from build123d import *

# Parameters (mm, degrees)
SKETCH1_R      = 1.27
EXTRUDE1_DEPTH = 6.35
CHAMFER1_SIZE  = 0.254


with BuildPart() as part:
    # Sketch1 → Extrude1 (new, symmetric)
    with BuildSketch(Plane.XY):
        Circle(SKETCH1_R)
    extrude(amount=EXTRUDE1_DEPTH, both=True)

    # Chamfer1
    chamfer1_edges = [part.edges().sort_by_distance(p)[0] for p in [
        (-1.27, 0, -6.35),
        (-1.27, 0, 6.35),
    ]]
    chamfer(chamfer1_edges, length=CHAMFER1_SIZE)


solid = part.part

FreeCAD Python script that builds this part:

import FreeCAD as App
import Part
import Sketcher

V = App.Vector
Q = App.Units.Quantity


def edges_at(feature, points):
    """Names of the edges that pass closest to the given points."""
    edges = feature.Shape.Edges
    near = lambda p: min(range(len(edges)), key=lambda i: edges[i].distToShape(Part.Vertex(*p))[0])
    return sorted({f"Edge{near(p) + 1}" for p in points})

doc = App.newDocument("Part")
body = doc.addObject("PartDesign::Body", "Body")

sketch1 = body.newObject("Sketcher::SketchObject", "Sketch")
sketch1.AttachmentSupport = (doc.getObject("XY_Plane"), [""])
sketch1.MapMode = "FlatFace"
sketch1.addGeometry(Part.Circle(V(0, 0, 0), V(0, 0, 1), 1.3), False)
sketch1.addConstraint(Sketcher.Constraint("Coincident", 0, 3, -1, 1))
sketch1.addConstraint(Sketcher.Constraint("Diameter", 0, Q("0.1 in")))
pad1 = body.newObject("PartDesign::Pad", "Pad")
pad1.Profile = sketch1
pad1.Length = Q("0.5 in")
pad1.Midplane = True
doc.recompute()

chamfer = body.newObject("PartDesign::Chamfer", "Chamfer")
chamfer.Base = (pad1, edges_at(pad1, [(-1.27, 0, -6.35), (-1.27, 0, 6.35)]))
chamfer.Size = Q("0.01 in")

doc.recompute()
